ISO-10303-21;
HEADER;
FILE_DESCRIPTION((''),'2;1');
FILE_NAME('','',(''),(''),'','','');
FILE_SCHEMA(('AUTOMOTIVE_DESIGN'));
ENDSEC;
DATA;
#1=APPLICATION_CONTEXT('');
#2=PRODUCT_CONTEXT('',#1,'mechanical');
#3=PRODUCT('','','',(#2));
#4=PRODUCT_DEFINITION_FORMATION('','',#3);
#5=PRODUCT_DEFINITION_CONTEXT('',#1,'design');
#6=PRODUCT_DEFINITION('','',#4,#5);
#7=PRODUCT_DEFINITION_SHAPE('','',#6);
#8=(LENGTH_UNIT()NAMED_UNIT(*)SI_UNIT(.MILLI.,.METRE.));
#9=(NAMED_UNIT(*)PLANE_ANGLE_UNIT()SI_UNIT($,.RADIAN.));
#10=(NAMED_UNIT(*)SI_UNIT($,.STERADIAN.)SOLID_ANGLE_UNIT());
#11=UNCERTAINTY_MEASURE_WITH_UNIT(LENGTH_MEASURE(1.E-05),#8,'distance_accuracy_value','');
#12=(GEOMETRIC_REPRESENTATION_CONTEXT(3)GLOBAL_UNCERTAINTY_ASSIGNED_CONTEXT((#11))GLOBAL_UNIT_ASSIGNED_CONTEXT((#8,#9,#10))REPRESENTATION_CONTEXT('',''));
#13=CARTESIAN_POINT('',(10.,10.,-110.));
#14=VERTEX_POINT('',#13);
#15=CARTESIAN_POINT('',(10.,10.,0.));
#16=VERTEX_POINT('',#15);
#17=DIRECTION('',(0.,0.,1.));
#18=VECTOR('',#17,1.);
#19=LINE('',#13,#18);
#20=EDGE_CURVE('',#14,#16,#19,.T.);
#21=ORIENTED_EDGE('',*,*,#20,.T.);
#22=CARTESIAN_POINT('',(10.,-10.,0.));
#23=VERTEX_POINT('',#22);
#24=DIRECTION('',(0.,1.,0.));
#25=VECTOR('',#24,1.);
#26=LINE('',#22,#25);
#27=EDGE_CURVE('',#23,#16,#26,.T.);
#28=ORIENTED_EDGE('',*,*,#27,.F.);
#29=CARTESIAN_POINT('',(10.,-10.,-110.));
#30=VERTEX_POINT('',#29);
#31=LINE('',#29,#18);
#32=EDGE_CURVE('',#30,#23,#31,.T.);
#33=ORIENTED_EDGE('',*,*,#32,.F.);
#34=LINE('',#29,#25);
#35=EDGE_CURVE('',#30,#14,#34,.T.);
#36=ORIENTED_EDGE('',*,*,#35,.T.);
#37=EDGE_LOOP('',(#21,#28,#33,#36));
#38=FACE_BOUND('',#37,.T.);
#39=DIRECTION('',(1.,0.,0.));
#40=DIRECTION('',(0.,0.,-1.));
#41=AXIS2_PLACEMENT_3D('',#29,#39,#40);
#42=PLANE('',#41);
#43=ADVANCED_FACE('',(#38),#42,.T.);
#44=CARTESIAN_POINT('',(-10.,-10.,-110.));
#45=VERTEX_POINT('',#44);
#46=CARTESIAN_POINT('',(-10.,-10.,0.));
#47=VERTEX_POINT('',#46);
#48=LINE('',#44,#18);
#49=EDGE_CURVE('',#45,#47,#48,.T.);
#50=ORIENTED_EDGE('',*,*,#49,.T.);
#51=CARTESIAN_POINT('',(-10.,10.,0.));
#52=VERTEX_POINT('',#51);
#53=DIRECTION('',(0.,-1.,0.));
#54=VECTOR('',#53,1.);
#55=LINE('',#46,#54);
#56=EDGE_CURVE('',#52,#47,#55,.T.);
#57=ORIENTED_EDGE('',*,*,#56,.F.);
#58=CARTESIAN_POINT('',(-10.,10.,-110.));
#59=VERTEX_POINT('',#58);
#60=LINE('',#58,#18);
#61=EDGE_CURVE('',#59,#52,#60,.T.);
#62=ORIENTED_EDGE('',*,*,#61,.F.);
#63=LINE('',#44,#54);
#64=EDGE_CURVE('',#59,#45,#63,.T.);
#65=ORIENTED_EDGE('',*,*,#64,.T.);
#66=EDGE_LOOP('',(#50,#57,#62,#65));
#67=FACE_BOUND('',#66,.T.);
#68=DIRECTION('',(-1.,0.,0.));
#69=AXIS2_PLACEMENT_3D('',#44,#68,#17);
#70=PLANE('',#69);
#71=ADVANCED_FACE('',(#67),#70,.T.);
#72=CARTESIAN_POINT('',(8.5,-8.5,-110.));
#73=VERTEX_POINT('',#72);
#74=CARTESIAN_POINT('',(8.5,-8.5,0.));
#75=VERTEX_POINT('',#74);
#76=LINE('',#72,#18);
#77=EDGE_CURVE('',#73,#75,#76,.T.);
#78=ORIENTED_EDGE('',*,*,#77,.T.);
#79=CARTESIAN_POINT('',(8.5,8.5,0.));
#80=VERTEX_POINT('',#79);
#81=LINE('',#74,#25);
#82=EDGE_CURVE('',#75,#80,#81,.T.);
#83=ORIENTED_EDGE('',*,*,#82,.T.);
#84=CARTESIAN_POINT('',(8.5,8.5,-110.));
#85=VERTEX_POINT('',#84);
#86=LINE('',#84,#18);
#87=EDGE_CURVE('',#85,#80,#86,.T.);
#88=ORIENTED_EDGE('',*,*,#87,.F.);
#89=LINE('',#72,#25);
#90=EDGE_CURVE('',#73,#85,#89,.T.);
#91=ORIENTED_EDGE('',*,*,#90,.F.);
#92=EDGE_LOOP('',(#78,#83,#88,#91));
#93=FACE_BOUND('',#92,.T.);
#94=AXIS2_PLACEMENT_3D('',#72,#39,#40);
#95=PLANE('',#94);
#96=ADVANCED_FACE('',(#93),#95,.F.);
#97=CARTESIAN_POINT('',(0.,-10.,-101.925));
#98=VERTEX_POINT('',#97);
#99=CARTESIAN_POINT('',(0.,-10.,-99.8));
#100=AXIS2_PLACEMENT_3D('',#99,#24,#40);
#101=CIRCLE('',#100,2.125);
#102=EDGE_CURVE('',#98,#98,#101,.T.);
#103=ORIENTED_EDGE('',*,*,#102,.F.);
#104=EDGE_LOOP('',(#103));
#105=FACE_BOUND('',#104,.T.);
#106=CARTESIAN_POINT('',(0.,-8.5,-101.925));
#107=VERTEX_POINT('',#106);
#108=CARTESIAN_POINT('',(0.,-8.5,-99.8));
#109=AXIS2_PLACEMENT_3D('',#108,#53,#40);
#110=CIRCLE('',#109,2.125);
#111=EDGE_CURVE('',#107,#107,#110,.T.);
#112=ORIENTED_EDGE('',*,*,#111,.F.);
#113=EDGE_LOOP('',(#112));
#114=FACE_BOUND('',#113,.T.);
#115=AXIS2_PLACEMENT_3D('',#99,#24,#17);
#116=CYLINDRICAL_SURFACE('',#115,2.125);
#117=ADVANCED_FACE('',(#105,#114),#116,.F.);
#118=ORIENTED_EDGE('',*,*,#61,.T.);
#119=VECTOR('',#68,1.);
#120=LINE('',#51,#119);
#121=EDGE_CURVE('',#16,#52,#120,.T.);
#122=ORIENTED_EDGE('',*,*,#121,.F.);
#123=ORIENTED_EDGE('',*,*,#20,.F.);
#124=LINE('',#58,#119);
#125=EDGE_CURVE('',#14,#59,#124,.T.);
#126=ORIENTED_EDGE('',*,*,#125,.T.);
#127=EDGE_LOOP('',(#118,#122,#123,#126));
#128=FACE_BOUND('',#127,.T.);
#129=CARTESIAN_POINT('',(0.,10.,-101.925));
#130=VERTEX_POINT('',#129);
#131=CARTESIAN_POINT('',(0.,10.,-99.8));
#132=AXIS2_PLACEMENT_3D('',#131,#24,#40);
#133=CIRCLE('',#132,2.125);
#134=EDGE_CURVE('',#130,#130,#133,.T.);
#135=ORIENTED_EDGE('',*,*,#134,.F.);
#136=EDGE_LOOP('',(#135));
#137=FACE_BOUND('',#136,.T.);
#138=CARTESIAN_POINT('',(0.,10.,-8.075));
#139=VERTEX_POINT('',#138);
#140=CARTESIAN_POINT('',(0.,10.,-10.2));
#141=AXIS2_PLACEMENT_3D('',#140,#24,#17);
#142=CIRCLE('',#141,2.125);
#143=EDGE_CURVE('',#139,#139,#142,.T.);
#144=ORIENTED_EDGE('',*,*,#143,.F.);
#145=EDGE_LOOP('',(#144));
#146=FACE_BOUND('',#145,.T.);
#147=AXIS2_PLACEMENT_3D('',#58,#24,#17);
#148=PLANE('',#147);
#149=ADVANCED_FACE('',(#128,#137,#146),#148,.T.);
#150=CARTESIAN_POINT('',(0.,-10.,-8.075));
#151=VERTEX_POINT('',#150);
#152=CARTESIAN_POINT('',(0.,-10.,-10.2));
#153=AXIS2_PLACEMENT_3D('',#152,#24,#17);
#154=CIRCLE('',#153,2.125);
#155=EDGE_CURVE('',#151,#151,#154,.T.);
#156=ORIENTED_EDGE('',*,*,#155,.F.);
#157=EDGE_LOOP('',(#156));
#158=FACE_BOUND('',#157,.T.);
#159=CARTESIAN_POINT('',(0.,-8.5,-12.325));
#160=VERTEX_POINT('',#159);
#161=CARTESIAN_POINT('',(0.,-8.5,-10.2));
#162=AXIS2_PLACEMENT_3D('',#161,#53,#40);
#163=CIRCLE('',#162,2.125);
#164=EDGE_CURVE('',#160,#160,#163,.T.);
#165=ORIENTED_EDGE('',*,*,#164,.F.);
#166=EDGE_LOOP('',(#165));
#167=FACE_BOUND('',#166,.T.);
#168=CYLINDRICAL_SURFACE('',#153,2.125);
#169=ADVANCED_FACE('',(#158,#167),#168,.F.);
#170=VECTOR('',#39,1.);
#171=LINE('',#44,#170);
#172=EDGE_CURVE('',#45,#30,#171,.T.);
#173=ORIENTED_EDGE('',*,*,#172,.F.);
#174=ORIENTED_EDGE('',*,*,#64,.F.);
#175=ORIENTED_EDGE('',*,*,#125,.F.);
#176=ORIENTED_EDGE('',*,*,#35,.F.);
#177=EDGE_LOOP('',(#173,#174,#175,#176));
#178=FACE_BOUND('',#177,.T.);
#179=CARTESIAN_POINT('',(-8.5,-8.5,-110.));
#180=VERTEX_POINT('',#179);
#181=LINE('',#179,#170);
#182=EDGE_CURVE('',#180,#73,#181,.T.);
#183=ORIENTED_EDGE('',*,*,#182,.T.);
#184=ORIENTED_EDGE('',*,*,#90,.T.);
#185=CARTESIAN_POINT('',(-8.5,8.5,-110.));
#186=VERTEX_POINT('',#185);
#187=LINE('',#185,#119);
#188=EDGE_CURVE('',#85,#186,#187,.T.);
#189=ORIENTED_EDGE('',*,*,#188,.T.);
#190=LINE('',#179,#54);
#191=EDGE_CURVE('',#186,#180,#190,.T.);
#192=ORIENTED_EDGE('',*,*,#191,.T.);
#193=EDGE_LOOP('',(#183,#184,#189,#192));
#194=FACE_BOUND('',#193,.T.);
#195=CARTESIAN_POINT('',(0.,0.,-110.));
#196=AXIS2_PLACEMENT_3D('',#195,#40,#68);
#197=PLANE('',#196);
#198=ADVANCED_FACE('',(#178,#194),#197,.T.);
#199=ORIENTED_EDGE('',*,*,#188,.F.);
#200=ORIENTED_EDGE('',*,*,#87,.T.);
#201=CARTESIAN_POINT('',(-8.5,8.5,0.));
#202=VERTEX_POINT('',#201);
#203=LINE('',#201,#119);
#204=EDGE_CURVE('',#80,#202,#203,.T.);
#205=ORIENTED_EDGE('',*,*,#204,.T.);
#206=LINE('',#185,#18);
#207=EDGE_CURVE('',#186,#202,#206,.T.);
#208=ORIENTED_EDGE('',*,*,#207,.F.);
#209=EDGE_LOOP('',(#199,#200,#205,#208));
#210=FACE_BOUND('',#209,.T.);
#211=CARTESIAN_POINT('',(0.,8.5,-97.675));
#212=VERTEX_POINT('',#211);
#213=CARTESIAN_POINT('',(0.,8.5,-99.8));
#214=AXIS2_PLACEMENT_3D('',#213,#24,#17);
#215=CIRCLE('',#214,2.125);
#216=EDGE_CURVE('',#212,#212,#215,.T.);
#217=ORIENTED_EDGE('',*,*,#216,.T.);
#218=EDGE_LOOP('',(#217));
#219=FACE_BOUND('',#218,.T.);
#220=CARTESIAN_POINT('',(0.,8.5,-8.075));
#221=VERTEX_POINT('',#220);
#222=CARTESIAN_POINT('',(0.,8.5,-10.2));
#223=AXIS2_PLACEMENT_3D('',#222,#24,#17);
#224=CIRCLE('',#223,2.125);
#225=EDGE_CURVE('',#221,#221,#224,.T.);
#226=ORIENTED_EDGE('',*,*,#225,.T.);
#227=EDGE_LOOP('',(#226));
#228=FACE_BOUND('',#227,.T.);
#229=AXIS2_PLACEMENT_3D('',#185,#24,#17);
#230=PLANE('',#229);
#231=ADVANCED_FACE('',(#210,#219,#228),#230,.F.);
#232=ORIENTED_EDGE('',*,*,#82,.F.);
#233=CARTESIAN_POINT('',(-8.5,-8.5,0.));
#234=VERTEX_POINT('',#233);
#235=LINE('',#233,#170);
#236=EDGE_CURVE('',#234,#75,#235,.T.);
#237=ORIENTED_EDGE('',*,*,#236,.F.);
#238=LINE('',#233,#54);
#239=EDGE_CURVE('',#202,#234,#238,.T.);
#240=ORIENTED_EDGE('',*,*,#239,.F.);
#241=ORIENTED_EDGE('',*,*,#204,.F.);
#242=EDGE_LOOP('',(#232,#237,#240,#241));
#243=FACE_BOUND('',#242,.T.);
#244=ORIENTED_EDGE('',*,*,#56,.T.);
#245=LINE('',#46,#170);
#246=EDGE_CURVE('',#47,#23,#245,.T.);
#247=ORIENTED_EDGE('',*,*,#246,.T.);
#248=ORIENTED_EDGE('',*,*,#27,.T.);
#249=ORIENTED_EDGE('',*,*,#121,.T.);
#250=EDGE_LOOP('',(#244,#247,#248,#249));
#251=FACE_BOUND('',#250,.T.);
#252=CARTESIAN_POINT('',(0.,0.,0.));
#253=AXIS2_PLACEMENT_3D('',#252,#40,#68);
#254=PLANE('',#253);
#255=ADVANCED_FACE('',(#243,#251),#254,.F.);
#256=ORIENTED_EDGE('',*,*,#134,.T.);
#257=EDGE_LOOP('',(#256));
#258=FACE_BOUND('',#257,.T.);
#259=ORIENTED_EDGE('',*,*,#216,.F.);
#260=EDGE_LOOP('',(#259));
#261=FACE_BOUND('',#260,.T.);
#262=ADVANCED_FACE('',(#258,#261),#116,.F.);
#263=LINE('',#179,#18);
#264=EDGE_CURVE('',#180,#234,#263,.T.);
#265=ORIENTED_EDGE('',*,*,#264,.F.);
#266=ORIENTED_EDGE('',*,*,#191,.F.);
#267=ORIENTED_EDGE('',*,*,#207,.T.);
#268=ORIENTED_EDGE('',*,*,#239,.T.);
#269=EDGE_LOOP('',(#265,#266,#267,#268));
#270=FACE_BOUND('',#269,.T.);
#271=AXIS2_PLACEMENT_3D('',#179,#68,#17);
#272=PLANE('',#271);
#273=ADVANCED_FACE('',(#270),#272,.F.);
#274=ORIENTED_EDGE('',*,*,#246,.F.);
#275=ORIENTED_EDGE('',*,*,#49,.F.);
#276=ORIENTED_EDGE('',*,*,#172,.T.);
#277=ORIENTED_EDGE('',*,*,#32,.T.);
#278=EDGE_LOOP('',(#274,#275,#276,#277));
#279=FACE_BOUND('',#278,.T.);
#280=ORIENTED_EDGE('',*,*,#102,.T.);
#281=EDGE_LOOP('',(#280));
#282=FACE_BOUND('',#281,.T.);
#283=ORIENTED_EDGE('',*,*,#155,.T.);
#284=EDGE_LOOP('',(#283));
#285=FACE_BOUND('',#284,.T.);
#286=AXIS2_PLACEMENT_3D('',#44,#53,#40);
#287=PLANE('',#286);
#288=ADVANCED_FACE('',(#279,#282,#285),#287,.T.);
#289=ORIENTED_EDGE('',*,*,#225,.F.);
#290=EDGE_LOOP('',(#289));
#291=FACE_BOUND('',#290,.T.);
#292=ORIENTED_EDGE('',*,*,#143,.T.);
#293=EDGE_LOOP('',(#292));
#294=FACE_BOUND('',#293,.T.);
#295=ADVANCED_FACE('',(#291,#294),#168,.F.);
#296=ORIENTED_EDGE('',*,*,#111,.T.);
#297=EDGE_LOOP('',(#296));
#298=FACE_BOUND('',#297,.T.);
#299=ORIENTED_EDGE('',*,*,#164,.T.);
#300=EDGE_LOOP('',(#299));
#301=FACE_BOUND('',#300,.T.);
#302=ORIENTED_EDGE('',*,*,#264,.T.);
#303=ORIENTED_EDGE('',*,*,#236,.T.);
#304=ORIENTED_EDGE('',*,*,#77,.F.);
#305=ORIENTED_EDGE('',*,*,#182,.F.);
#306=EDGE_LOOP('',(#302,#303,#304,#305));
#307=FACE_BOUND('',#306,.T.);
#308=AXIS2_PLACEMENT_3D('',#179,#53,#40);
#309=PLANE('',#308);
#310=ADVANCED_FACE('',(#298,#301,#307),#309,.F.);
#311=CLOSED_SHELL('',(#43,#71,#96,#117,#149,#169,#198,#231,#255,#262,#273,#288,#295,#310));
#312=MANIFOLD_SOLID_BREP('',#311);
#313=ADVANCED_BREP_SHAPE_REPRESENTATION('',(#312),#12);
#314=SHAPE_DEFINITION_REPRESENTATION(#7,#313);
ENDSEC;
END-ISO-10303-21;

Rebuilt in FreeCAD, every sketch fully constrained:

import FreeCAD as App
import Part
import Sketcher

V = App.Vector
Q = App.Units.Quantity


def add_polygon(sketch, points):
    """Adds a closed chain of lines whose ends are joined by coincident constraints."""
    first, n = sketch.GeometryCount, len(points)
    for a, b in zip(points, points[1:] + points[:1]):
        sketch.addGeometry(Part.LineSegment(App.Vector(*a, 0), App.Vector(*b, 0)), False)
    for i in range(n):
        sketch.addConstraint(Sketcher.Constraint("Coincident", first + i, 2, first + (i + 1) % n, 1))

doc = App.newDocument("Part")
body = doc.addObject("PartDesign::Body", "Body")

sketch1 = doc.addObject("Sketcher::SketchObject", "Sketch")
body.addObject(sketch1)
sketch1.AttachmentSupport = (doc.XY_Plane, [""])
sketch1.MapMode = "FlatFace"
add_polygon(sketch1, [(-10, 10), (-10, -10), (10, -10), (10, 10)])
add_polygon(sketch1, [(8, -8), (-8, -8), (-8, 8), (8, 8)])
sketch1.addConstraint([
    Sketcher.Constraint("Vertical", 0),
    Sketcher.Constraint("Horizontal", 1),
    Sketcher.Constraint("Vertical", 2),
    Sketcher.Constraint("Horizontal", 3),
    Sketcher.Constraint("Horizontal", 4),
    Sketcher.Constraint("Vertical", 5),
    Sketcher.Constraint("Horizontal", 6),
    Sketcher.Constraint("Vertical", 7),
    Sketcher.Constraint("Symmetric", 0, 2, 2, 2, -1, 1),
    Sketcher.Constraint("Symmetric", 4, 2, 6, 2, -1, 1),
    Sketcher.Constraint("Equal", 3, 0),
    Sketcher.Constraint("Equal", 6, 5),
    Sketcher.Constraint("DistanceX", 1, 1, 1, 2, Q("20 mm")),
    Sketcher.Constraint("DistanceX", 4, 2, 4, 1, Q("17 mm")),
])
pad1 = doc.addObject("PartDesign::Pad", "Pad")
body.addObject(pad1)
pad1.Profile = sketch1
pad1.Length = 110
pad1.Reversed = True

sketch2 = doc.addObject("Sketcher::SketchObject", "Sketch001")
body.addObject(sketch2)
sketch2.AttachmentSupport = (doc.XZ_Plane, [""])
sketch2.MapMode = "FlatFace"
sketch2.AttachmentOffset = App.Placement(V(0, 0, -10), App.Rotation())
sketch2.addGeometry([
    Part.Circle(V(0, -10.2, 0), V(0, 0, 1), 2.1),
    Part.Circle(V(0, -99.8, 0), V(0, 0, 1), 2.1),
], False)
sketch2.addConstraint([
    Sketcher.Constraint("Equal", 0, 1),
    Sketcher.Constraint("PointOnObject", 0, 3, -2),
    Sketcher.Constraint("PointOnObject", 1, 3, -2),
    Sketcher.Constraint("Diameter", 0, Q("4.25 mm")),
    Sketcher.Constraint("DistanceY", 0, 3, -1, 1, Q("10.2 mm")),
    Sketcher.Constraint("DistanceY", 1, 3, -1, 1, Q("99.8 mm")),
])
pocket1 = doc.addObject("PartDesign::Pocket", "Pocket")
body.addObject(pocket1)
pocket1.Profile = sketch2
pocket1.Type = "ThroughAll"
pocket1.Reversed = True

doc.recompute()
